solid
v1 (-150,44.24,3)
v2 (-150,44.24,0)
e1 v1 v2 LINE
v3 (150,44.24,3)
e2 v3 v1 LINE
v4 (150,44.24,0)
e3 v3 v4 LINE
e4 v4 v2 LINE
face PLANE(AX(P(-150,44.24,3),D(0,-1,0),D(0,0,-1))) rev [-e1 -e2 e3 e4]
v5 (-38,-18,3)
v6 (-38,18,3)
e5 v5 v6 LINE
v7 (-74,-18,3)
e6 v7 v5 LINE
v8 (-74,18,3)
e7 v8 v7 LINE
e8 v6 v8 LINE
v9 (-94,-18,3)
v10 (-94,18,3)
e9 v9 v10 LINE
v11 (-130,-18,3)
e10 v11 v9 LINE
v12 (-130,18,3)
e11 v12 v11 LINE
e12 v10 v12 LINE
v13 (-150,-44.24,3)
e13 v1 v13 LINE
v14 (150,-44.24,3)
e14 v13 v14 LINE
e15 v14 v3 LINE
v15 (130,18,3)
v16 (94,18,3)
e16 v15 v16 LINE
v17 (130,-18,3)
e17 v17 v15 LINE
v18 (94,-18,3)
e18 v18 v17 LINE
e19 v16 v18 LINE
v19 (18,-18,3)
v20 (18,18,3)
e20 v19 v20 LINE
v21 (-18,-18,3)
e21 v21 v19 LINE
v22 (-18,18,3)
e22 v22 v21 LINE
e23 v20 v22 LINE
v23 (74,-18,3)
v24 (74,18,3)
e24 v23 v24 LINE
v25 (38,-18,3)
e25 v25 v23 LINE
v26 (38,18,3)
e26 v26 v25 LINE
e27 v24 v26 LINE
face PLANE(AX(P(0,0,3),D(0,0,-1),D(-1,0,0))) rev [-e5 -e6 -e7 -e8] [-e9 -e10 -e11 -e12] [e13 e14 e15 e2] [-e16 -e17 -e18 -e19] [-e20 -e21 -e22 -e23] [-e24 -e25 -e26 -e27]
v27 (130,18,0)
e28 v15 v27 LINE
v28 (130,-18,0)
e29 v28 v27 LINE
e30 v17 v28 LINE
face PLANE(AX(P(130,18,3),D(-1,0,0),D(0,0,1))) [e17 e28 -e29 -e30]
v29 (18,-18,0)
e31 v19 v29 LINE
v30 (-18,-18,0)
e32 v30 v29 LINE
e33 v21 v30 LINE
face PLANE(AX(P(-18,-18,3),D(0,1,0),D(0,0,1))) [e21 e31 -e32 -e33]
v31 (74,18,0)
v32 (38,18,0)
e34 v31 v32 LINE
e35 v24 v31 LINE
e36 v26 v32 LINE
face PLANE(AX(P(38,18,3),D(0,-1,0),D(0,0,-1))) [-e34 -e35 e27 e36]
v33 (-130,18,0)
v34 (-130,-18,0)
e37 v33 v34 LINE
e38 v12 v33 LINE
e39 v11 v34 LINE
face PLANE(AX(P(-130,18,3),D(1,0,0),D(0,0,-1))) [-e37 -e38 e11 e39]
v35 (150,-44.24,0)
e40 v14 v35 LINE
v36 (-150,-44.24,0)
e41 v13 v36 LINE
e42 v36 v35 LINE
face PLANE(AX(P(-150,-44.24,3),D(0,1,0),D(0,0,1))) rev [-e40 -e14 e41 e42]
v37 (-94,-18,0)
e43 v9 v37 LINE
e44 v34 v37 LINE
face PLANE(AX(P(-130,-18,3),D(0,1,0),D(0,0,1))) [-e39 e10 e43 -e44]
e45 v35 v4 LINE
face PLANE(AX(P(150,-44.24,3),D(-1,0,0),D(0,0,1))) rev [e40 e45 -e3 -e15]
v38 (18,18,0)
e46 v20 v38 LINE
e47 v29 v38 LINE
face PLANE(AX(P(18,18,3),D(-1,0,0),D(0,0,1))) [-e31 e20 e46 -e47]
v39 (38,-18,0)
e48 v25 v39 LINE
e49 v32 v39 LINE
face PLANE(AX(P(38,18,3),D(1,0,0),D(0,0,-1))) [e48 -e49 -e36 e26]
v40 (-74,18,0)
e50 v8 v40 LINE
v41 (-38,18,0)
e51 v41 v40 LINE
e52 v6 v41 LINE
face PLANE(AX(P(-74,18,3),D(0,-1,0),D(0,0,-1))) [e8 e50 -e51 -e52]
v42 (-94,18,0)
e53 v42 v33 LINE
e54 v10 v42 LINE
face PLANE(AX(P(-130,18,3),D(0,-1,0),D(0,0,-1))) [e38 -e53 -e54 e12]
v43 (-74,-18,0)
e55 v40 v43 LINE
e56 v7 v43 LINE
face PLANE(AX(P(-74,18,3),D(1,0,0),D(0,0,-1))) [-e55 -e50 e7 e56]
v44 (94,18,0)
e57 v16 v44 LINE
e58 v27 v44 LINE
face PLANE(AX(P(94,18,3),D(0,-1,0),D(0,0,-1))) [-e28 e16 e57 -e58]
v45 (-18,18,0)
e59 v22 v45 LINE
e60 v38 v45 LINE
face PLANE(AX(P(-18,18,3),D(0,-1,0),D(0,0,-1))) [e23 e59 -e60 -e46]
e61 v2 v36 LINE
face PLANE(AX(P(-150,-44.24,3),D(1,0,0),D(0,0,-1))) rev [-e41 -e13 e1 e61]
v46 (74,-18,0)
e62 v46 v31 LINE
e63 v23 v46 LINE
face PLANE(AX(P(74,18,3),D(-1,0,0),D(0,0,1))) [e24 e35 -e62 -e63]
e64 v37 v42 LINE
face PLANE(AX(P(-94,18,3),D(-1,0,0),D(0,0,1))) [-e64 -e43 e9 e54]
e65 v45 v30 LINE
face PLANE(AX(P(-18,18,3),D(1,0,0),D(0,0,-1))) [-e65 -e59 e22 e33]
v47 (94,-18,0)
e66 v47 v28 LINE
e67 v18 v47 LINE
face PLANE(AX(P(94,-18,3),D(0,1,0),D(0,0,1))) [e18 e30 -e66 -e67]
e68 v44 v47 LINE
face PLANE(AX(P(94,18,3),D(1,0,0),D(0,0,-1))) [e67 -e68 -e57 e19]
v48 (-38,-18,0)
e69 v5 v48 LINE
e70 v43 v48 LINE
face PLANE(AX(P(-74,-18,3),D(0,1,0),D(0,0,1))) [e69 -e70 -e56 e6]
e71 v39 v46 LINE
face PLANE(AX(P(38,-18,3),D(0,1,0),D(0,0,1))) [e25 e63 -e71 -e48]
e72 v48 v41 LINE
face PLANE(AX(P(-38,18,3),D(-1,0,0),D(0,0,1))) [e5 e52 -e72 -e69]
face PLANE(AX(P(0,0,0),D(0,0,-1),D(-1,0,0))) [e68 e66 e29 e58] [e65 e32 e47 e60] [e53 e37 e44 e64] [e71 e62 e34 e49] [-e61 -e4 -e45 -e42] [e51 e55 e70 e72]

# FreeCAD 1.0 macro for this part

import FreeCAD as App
import Part
import Sketcher

V = App.Vector

doc = App.newDocument("Part")
body = doc.addObject("PartDesign::Body", "Body")

# Sketch on XY plane
sketch1 = doc.addObject("Sketcher::SketchObject", "Sketch")
body.addObject(sketch1)
sketch1.AttachmentSupport = (doc.XY_Plane, [""])
sketch1.MapMode = "FlatFace"
sketch1.addGeometry([
    Part.LineSegment(V(-150, 44, 0), V(-150, -44, 0)),  # 0
    Part.LineSegment(V(-150, -44, 0), V(150, -44, 0)),  # 1
    Part.LineSegment(V(150, -44, 0), V(150, 44, 0)),  # 2
    Part.LineSegment(V(150, 44, 0), V(-150, 44, 0)),  # 3
    Part.LineSegment(V(-94, -18, 0), V(-130, -18, 0)),  # 4
    Part.LineSegment(V(-130, -18, 0), V(-130, 18, 0)),  # 5
    Part.LineSegment(V(-130, 18, 0), V(-94, 18, 0)),  # 6
    Part.LineSegment(V(-94, 18, 0), V(-94, -18, 0)),  # 7
    Part.LineSegment(V(-38, -18, 0), V(-74, -18, 0)),  # 8
    Part.LineSegment(V(-74, -18, 0), V(-74, 18, 0)),  # 9
    Part.LineSegment(V(-74, 18, 0), V(-38, 18, 0)),  # 10
    Part.LineSegment(V(-38, 18, 0), V(-38, -18, 0)),  # 11
    Part.LineSegment(V(18, -18, 0), V(-18, -18, 0)),  # 12
    Part.LineSegment(V(-18, -18, 0), V(-18, 18, 0)),  # 13
    Part.LineSegment(V(-18, 18, 0), V(18, 18, 0)),  # 14
    Part.LineSegment(V(18, 18, 0), V(18, -18, 0)),  # 15
    Part.LineSegment(V(74, -18, 0), V(38, -18, 0)),  # 16
    Part.LineSegment(V(38, -18, 0), V(38, 18, 0)),  # 17
    Part.LineSegment(V(38, 18, 0), V(74, 18, 0)),  # 18
    Part.LineSegment(V(74, 18, 0), V(74, -18, 0)),  # 19
    Part.LineSegment(V(130, -18, 0), V(94, -18, 0)),  # 20
    Part.LineSegment(V(94, -18, 0), V(94, 18, 0)),  # 21
    Part.LineSegment(V(94, 18, 0), V(130, 18, 0)),  # 22
    Part.LineSegment(V(130, 18, 0), V(130, -18, 0)),  # 23
], False)
sketch1.addConstraint([
    Sketcher.Constraint("Coincident", 0, 2, 1, 1),
    Sketcher.Constraint("Coincident", 1, 2, 2, 1),
    Sketcher.Constraint("Coincident", 2, 2, 3, 1),
    Sketcher.Constraint("Coincident", 3, 2, 0, 1),
    Sketcher.Constraint("Coincident", 4, 2, 5, 1),
    Sketcher.Constraint("Coincident", 5, 2, 6, 1),
    Sketcher.Constraint("Coincident", 6, 2, 7, 1),
    Sketcher.Constraint("Coincident", 7, 2, 4, 1),
    Sketcher.Constraint("Coincident", 8, 2, 9, 1),
    Sketcher.Constraint("Coincident", 9, 2, 10, 1),
    Sketcher.Constraint("Coincident", 10, 2, 11, 1),
    Sketcher.Constraint("Coincident", 11, 2, 8, 1),
    Sketcher.Constraint("Coincident", 12, 2, 13, 1),
    Sketcher.Constraint("Coincident", 13, 2, 14, 1),
    Sketcher.Constraint("Coincident", 14, 2, 15, 1),
    Sketcher.Constraint("Coincident", 15, 2, 12, 1),
    Sketcher.Constraint("Coincident", 16, 2, 17, 1),
    Sketcher.Constraint("Coincident", 17, 2, 18, 1),
    Sketcher.Constraint("Coincident", 18, 2, 19, 1),
    Sketcher.Constraint("Coincident", 19, 2, 16, 1),
    Sketcher.Constraint("Coincident", 20, 2, 21, 1),
    Sketcher.Constraint("Coincident", 21, 2, 22, 1),
    Sketcher.Constraint("Coincident", 22, 2, 23, 1),
    Sketcher.Constraint("Coincident", 23, 2, 20, 1),
    Sketcher.Constraint("Vertical", 0),
    Sketcher.Constraint("Horizontal", 1),
    Sketcher.Constraint("Vertical", 2),
    Sketcher.Constraint("Horizontal", 3),
    Sketcher.Constraint("Horizontal", 4),
    Sketcher.Constraint("Vertical", 5),
    Sketcher.Constraint("Horizontal", 6),
    Sketcher.Constraint("Vertical", 7),
    Sketcher.Constraint("Horizontal", 8),
    Sketcher.Constraint("Vertical", 9),
    Sketcher.Constraint("Horizontal", 10),
    Sketcher.Constraint("Vertical", 11),
    Sketcher.Constraint("Horizontal", 12),
    Sketcher.Constraint("Vertical", 13),
    Sketcher.Constraint("Horizontal", 14),
    Sketcher.Constraint("Vertical", 15),
    Sketcher.Constraint("Horizontal", 16),
    Sketcher.Constraint("Vertical", 17),
    Sketcher.Constraint("Horizontal", 18),
    Sketcher.Constraint("Vertical", 19),
    Sketcher.Constraint("Horizontal", 20),
    Sketcher.Constraint("Vertical", 21),
    Sketcher.Constraint("Horizontal", 22),
    Sketcher.Constraint("Vertical", 23),
    Sketcher.Constraint("Symmetric", 0, 2, 2, 2, -1, 1),
    Sketcher.Constraint("Symmetric", 12, 2, 14, 2, -1, 1),
    Sketcher.Constraint("Symmetric", 10, 2, 16, 2, -1, 1),
    Sketcher.Constraint("Symmetric", 8, 2, 18, 2, -1, 1),
    Sketcher.Constraint("Symmetric", 6, 2, 20, 2, -1, 1),
    Sketcher.Constraint("Symmetric", 4, 2, 22, 2, -1, 1),
    Sketcher.Constraint("Horizontal", 7, 2, 8, 2),
    Sketcher.Constraint("Horizontal", 6, 2, 9, 2),
    Sketcher.Constraint("Horizontal", 11, 2, 12, 2),
    Sketcher.Constraint("Horizontal", 10, 2, 13, 2),
    Sketcher.Constraint("Equal", 6, 8),
    Sketcher.Constraint("Equal", 10, 12),
    Sketcher.Constraint("Equal", 22, 5),
    Sketcher.Constraint("DistanceX", 1, 1, 1, 2, 300.0),
    Sketcher.Constraint("DistanceX", 4, 2, 4, 1, 36.0),
    Sketcher.Constraint("DistanceX", 4, 2, -1, 1, 130.0),
    Sketcher.Constraint("DistanceX", 8, 2, -1, 1, 74.0),
    Sketcher.Constraint("DistanceY", 0, 2, 0, 1, 88.48),
])
pad1 = doc.addObject("PartDesign::Pad", "Pad")
body.addObject(pad1)
pad1.Profile = sketch1
pad1.Length = 3

doc.recompute()
